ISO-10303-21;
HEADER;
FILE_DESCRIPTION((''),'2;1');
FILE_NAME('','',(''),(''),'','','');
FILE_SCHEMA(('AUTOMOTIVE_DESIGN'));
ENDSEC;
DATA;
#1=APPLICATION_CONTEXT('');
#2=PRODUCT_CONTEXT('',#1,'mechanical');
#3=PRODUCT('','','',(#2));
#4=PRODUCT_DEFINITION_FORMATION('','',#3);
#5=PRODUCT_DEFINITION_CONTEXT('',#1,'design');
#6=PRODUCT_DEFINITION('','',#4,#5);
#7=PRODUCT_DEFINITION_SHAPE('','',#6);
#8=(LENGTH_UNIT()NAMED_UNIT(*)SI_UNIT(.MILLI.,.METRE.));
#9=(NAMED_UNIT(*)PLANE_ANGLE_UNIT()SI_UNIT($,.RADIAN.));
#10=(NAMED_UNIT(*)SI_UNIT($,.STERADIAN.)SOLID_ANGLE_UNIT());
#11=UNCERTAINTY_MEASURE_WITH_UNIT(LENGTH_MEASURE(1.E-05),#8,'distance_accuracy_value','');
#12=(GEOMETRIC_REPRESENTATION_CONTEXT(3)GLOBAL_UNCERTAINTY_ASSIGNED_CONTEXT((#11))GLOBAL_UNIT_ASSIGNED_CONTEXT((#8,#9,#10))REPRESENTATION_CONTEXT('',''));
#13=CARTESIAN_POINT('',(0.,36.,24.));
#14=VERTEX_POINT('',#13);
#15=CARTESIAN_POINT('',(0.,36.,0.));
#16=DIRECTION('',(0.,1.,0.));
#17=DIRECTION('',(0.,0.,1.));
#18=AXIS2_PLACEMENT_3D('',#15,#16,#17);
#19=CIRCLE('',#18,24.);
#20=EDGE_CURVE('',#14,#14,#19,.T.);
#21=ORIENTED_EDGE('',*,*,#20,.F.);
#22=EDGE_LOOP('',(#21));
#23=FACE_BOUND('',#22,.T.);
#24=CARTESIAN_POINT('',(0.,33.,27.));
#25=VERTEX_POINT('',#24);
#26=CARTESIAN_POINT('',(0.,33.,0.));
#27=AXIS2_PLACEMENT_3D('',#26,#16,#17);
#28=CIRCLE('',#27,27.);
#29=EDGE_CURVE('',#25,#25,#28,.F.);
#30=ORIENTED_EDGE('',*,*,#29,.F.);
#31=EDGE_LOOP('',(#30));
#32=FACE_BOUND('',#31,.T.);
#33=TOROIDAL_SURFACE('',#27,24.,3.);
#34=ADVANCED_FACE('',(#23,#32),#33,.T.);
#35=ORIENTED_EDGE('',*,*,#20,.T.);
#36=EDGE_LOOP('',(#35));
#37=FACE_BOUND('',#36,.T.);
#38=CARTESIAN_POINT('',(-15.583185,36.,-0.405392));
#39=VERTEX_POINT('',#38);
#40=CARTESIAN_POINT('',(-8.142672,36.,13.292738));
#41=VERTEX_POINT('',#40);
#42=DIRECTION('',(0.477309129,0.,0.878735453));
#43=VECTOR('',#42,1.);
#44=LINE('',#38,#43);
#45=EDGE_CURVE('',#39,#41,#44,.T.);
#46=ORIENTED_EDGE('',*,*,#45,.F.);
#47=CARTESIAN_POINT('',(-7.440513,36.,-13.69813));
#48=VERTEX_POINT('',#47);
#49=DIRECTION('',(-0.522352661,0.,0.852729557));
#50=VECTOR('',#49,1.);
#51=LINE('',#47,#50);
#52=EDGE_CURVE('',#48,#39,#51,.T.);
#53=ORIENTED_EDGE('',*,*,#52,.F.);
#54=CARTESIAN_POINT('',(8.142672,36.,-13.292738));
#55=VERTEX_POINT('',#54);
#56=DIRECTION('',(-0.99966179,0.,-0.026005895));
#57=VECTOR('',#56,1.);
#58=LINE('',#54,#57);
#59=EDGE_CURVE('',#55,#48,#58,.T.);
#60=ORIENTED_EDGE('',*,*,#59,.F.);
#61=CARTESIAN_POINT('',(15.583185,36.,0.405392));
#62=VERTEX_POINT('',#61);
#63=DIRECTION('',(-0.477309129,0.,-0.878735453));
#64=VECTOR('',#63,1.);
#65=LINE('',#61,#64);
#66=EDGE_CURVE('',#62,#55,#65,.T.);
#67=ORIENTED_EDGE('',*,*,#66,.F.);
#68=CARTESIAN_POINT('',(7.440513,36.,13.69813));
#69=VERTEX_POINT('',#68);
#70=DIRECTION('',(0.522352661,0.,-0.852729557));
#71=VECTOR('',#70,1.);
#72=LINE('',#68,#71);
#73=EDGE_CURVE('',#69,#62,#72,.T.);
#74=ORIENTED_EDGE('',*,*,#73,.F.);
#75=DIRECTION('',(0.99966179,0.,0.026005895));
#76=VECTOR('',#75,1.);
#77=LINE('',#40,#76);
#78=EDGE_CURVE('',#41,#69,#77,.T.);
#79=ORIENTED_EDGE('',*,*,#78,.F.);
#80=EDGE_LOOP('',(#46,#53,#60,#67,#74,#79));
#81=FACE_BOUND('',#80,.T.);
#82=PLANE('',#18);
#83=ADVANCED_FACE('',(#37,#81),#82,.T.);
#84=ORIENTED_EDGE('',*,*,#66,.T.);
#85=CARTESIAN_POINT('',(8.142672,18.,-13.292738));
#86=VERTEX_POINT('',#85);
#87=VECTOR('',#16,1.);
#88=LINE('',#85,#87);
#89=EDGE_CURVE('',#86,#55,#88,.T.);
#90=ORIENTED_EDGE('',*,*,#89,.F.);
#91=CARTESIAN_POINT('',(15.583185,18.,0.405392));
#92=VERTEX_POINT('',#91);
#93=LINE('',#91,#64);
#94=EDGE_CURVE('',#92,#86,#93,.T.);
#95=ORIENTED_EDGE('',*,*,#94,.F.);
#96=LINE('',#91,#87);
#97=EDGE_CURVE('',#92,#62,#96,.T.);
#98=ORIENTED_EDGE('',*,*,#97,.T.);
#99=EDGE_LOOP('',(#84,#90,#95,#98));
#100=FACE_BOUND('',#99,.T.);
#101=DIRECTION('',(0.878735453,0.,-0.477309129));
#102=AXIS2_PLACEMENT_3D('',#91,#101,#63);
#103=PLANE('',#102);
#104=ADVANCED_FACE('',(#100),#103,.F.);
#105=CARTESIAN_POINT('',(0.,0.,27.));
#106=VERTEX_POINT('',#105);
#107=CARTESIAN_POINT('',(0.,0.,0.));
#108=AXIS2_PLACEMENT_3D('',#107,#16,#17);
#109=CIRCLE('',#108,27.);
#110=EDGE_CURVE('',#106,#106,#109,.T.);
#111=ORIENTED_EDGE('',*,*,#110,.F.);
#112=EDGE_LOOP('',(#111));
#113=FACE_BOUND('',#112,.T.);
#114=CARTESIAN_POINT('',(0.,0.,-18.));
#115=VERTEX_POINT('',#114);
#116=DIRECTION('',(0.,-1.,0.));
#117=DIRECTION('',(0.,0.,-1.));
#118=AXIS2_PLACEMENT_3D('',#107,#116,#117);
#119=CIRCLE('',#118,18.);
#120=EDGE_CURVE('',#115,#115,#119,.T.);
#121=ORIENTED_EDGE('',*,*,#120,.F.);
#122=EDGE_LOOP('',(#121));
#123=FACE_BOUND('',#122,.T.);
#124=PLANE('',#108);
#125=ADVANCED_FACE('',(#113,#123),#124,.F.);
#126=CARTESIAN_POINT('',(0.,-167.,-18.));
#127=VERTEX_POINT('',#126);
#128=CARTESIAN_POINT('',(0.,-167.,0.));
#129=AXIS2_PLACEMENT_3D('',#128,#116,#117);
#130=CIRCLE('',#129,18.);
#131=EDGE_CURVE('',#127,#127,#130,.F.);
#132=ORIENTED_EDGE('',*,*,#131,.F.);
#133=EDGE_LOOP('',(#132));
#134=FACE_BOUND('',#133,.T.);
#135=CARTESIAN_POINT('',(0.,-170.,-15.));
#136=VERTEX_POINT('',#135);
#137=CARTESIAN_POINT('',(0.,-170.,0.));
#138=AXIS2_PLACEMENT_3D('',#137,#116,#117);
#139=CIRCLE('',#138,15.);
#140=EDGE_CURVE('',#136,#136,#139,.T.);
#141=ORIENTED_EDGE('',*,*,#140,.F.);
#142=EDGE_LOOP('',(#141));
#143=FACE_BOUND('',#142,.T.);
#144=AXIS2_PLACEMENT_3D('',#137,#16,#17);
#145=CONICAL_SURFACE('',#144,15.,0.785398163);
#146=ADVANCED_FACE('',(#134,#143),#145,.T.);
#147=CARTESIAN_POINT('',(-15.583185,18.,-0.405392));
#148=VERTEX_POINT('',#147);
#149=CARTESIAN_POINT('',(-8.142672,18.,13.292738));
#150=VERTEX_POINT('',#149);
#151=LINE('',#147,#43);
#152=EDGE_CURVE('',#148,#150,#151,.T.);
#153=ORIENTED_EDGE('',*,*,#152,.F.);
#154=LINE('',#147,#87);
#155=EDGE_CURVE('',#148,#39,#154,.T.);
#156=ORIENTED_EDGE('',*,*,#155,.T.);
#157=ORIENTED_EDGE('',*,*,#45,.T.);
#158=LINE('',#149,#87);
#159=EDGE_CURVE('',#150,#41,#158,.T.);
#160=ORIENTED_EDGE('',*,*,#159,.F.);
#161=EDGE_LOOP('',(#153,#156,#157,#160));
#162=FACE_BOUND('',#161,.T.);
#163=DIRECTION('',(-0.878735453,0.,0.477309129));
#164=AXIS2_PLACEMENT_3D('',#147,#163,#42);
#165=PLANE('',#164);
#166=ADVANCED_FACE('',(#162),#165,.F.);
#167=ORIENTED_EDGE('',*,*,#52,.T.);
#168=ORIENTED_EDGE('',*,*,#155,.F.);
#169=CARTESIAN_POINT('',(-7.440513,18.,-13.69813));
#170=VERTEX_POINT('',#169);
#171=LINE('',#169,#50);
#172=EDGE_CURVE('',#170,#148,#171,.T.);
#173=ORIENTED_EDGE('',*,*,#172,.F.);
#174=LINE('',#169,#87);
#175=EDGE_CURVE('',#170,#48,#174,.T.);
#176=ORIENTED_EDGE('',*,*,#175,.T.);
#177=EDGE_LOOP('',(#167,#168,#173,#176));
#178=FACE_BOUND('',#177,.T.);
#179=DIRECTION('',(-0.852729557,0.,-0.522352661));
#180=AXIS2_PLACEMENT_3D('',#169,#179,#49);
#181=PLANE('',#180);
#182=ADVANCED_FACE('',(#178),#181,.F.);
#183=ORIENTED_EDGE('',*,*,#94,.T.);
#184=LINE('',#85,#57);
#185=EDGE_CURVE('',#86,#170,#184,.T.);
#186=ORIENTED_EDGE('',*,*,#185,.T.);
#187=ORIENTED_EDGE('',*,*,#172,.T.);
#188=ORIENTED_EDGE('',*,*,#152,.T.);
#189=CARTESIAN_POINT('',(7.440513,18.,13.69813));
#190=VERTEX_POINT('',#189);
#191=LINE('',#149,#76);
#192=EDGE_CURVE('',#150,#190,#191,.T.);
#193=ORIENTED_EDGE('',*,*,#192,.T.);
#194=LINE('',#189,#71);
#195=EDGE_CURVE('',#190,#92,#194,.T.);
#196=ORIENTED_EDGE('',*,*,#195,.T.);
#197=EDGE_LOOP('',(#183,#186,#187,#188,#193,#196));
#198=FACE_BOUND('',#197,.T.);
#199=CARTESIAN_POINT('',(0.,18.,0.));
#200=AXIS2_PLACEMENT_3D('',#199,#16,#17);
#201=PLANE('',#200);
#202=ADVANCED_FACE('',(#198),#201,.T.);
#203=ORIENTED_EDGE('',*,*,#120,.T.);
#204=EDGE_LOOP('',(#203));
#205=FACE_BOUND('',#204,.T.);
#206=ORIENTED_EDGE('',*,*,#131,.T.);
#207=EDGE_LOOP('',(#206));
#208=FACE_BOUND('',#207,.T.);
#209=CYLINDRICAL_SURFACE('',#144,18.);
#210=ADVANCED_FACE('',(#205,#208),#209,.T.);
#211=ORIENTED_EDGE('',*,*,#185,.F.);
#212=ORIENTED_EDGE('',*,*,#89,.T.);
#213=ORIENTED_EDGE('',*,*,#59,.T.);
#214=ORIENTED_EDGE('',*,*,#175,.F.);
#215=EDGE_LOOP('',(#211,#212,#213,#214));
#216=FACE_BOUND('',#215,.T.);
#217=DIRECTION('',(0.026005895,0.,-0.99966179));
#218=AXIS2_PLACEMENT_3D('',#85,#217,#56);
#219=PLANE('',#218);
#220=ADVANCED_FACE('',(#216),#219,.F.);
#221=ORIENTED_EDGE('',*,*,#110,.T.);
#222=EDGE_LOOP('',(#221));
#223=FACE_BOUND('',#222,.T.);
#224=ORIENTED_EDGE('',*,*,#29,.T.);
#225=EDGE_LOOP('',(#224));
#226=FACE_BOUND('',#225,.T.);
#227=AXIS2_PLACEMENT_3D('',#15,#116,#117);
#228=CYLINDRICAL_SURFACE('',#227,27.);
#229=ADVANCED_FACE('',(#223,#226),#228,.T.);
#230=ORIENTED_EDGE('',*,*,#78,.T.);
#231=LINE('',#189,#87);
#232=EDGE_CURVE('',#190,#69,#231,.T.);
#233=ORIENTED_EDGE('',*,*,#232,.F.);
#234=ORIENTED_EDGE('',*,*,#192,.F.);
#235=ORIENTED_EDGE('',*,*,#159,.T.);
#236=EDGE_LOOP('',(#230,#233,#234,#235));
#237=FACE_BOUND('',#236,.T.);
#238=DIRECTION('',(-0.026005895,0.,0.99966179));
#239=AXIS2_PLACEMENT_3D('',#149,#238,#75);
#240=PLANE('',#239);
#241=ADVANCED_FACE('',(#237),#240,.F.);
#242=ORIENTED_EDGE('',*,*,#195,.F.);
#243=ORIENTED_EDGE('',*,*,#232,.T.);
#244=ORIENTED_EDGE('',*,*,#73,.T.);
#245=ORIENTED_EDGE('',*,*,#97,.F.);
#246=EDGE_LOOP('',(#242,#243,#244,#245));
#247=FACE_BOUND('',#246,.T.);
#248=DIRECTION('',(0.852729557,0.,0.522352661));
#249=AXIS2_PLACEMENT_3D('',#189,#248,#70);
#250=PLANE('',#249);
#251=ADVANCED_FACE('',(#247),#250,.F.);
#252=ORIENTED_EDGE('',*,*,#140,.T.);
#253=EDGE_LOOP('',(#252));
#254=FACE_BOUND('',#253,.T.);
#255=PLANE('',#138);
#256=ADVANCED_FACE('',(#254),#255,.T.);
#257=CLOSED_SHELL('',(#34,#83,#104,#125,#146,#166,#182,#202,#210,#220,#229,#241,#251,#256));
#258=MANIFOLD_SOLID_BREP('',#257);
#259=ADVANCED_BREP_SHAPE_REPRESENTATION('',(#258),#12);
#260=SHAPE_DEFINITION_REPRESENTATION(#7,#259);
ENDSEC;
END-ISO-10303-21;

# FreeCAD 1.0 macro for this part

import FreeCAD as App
import Part
import Sketcher

V = App.Vector


def edges_at(feature, points):
    """Names of the edges that pass closest to the given points."""
    edges = feature.Shape.Edges
    near = lambda p: min(range(len(edges)), key=lambda i: edges[i].distToShape(Part.Vertex(*p))[0])
    return sorted({f"Edge{near(p) + 1}" for p in points})


def add_polygon(sketch, points):
    """Adds a closed chain of lines whose ends are joined by coincident constraints."""
    first, n = sketch.GeometryCount, len(points)
    for a, b in zip(points, points[1:] + points[:1]):
        sketch.addGeometry(Part.LineSegment(App.Vector(*a, 0), App.Vector(*b, 0)), False)
    for i in range(n):
        sketch.addConstraint(Sketcher.Constraint("Coincident", first + i, 2, first + (i + 1) % n, 1))

doc = App.newDocument("Part")
body = doc.addObject("PartDesign::Body", "Body")

sketch1 = body.newObject("Sketcher::SketchObject", "Sketch")
sketch1.AttachmentSupport = (doc.getObject("XZ_Plane"), [""])
sketch1.MapMode = "FlatFace"
sketch1.addGeometry(Part.Circle(V(0, 0, 0), V(0, 0, 1), 27), False)
sketch1.addConstraint(Sketcher.Constraint("Coincident", 0, 3, -1, 1))
sketch1.addConstraint(Sketcher.Constraint("Diameter", 0, 54.0))
pad1 = body.newObject("PartDesign::Pad", "Pad")
pad1.Profile = sketch1
pad1.Length = 36
pad1.Reversed = True
doc.recompute()

fillet = body.newObject("PartDesign::Fillet", "Fillet")
fillet.Base = (pad1, edges_at(pad1, [(0, 36, -27)]))
fillet.Radius = 3

sketch2 = body.newObject("Sketcher::SketchObject", "Sketch001")
sketch2.AttachmentSupport = (doc.getObject("XZ_Plane"), [""])
sketch2.MapMode = "FlatFace"
sketch2.addGeometry(Part.Circle(V(0, 0, 0), V(0, 0, 1), 18), False)
sketch2.addConstraint(Sketcher.Constraint("Coincident", 0, 3, -1, 1))
sketch2.addConstraint(Sketcher.Constraint("Diameter", 0, 36.0))
pad2 = body.newObject("PartDesign::Pad", "Pad001")
pad2.Profile = sketch2
pad2.Length = 170

sketch3 = body.newObject("Sketcher::SketchObject", "Sketch002")
sketch3.AttachmentSupport = (doc.getObject("XZ_Plane"), [""])
sketch3.MapMode = "FlatFace"
sketch3.AttachmentOffset = App.Placement(V(0, 0, -36), App.Rotation())
add_polygon(sketch3, [(8.142672, -13.292738), (-7.440513, -13.69813), (-15.583185, -0.405392), (-8.142672, 13.292738), (7.440513, 13.69813), (15.583185, 0.405392)])
sketch3.addConstraint(Sketcher.Constraint("Symmetric", 0, 2, 3, 2, -1, 1))
sketch3.addConstraint(Sketcher.Constraint("Symmetric", 1, 2, 4, 2, -1, 1))
sketch3.addConstraint(Sketcher.Constraint("Symmetric", 2, 2, 5, 2, -1, 1))
sketch3.addConstraint(Sketcher.Constraint("Equal", 0, 1))
sketch3.addConstraint(Sketcher.Constraint("Equal", 1, 2))
sketch3.addConstraint(Sketcher.Constraint("DistanceX", 1, 2, 3, 2, 23.023698))
sketch3.addConstraint(Sketcher.Constraint("DistanceY", 0, 2, -1, 1, 13.69813))
sketch3.addConstraint(Sketcher.Constraint("DistanceY", 1, 2, -1, 1, 0.405392))
sketch3.addConstraint(Sketcher.Constraint("DistanceY", -1, 1, 2, 2, 13.292738))
pocket1 = body.newObject("PartDesign::Pocket", "Pocket")
pocket1.Profile = sketch3
pocket1.Length = 18
pocket1.Reversed = True
doc.recompute()

chamfer = body.newObject("PartDesign::Chamfer", "Chamfer")
chamfer.Base = (pocket1, edges_at(pocket1, [(0, -170, 18)]))
chamfer.Size = 3

doc.recompute()
